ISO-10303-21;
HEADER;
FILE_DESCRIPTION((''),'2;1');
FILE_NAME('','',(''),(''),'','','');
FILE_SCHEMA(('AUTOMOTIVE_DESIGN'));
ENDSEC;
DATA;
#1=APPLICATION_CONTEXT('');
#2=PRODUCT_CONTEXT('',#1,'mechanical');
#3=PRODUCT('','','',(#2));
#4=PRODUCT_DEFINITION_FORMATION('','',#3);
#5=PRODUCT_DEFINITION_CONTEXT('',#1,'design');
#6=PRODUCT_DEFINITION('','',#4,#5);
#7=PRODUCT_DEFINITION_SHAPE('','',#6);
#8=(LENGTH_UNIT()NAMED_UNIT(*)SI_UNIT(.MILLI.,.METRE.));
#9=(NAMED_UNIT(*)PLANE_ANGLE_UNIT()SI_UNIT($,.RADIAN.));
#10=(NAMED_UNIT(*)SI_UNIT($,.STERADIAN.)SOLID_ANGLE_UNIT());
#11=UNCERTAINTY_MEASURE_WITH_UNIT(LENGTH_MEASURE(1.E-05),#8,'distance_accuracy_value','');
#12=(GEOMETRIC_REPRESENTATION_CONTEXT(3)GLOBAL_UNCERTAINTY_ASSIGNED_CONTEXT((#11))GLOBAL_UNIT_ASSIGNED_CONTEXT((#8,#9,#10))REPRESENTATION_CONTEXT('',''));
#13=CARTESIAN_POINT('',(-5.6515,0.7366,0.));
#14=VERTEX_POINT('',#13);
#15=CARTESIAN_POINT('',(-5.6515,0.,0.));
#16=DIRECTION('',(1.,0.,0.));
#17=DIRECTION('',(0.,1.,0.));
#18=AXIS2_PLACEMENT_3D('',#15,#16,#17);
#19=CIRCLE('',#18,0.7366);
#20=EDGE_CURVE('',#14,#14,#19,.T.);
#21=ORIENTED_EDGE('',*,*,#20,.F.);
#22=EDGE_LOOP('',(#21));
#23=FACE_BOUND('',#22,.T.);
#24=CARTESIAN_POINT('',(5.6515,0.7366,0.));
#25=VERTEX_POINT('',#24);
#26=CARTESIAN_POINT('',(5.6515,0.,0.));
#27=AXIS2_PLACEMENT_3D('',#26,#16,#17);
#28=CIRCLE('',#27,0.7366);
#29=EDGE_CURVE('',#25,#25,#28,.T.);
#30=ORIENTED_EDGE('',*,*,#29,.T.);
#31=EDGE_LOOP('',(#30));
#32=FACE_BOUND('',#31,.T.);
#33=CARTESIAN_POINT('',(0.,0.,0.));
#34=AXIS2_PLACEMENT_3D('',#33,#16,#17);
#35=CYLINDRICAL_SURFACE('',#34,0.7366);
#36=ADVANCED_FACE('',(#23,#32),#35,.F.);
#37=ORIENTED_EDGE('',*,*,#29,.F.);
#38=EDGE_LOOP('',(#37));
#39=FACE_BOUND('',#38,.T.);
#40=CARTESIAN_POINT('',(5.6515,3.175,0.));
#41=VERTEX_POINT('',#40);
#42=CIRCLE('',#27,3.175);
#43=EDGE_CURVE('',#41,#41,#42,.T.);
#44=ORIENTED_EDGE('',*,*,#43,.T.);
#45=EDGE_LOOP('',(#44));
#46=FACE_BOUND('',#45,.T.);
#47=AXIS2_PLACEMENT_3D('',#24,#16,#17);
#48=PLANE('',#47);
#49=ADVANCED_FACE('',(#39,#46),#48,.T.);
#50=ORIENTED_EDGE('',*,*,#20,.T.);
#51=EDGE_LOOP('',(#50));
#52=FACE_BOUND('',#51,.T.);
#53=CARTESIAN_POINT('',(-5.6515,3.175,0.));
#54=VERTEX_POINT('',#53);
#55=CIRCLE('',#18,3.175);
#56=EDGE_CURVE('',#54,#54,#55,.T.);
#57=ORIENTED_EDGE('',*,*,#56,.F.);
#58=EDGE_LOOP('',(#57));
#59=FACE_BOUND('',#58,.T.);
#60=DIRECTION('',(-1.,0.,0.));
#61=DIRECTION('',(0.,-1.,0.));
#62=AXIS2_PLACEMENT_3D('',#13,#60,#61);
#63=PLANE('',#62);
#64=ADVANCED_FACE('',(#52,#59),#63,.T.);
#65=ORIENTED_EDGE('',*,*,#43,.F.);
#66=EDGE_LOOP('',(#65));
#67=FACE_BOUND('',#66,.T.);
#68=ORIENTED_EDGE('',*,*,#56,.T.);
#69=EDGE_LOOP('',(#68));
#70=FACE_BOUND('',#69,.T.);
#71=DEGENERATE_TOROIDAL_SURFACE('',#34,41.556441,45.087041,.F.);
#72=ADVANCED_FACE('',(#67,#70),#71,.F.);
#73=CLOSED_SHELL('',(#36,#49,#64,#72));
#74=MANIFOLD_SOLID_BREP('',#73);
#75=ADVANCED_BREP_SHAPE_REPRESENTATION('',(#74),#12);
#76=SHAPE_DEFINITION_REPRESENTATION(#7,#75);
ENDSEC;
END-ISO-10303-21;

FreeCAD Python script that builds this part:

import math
import FreeCAD as App
import Part
import Sketcher
from FreeCAD import Vector
Q = App.Units.Quantity

doc = App.newDocument("Part")
params = doc.addObject("Spreadsheet::Sheet", "Params")
for row, (alias, value) in enumerate([
    ("sketch1_width", "0.445 in"),
    ("sketch1_height", "0.096 in"),
    ("revolution_angle", "360 deg"),
], start=1):
    params.set(f"A{row}", alias)
    params.set(f"B{row}", "=" + value)
    params.setAlias(f"B{row}", alias)

body = doc.addObject("PartDesign::Body", "Body")

# Sketch on XY plane
sketch1 = doc.addObject("Sketcher::SketchObject", "Sketch")
body.addObject(sketch1)
sketch1.AttachmentSupport = (doc.XY_Plane, [""])
sketch1.MapMode = "FlatFace"
sketch1.addGeometry([
    Part.LineSegment(Vector(5.7, 0.7, 0), Vector(5.7, 3.2, 0)),
    Part.ArcOfCircle(Part.Circle(Vector(0, -41.6, 0), Vector(0, 0, 1), 45.1), math.radians(82.8), math.radians(97.2)),
    Part.LineSegment(Vector(-5.7, 3.2, 0), Vector(-5.7, 0.7, 0)),
    Part.LineSegment(Vector(-5.7, 0.7, 0), Vector(5.7, 0.7, 0)),
], False)
sketch1.addConstraint([
    Sketcher.Constraint("Coincident", 0, 2, 1, 1),
    Sketcher.Constraint("Coincident", 1, 2, 2, 1),
    Sketcher.Constraint("Coincident", 2, 2, 3, 1),
    Sketcher.Constraint("Coincident", 3, 2, 0, 1),
    Sketcher.Constraint("Vertical", 0),
    Sketcher.Constraint("Vertical", 2),
    Sketcher.Constraint("Horizontal", 3),
    Sketcher.Constraint("Symmetric", 0, 2, 1, 2, -2),
    Sketcher.Constraint("DistanceX", 3, 1, 3, 2, Q("0.445 in")),
    Sketcher.Constraint("DistanceY", 0, 1, 0, 2, Q("0.096 in")),
    Sketcher.Constraint("DistanceY", -1, 1, 0, 2, Q("0.125 in")),
    Sketcher.Constraint("Radius", 1, Q("45.087041 mm")),
])
sketch1.setExpression("Constraints[8]", "Params.sketch1_width")
sketch1.setExpression("Constraints[9]", "Params.sketch1_height")
revolution = doc.addObject("PartDesign::Revolution", "Revolution")
body.addObject(revolution)
revolution.Profile = sketch1
revolution.ReferenceAxis = (sketch1, ["H_Axis"])
revolution.setExpression("Angle", "Params.revolution_angle")

doc.recompute()
